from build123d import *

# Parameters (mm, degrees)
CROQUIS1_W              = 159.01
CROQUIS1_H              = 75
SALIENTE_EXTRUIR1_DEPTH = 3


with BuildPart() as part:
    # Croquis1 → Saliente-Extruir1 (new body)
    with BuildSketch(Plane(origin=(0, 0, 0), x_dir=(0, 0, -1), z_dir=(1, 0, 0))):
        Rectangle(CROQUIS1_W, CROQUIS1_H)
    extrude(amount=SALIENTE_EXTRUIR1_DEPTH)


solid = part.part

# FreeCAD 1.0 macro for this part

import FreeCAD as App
import Part
import Sketcher

V = App.Vector
Q = App.Units.Quantity

doc = App.newDocument("Part")
body = doc.addObject("PartDesign::Body", "Body")

sketch1 = body.newObject("Sketcher::SketchObject", "Sketch")
sketch1.AttachmentSupport = (doc.getObject("YZ_Plane"), [""])
sketch1.MapMode = "FlatFace"
sketch1.addGeometry(Part.LineSegment(V(38, 80, 0), V(-38, 80, 0)), False)
sketch1.addGeometry(Part.LineSegment(V(-38, 80, 0), V(-38, -80, 0)), False)
sketch1.addGeometry(Part.LineSegment(V(-38, -80, 0), V(38, -80, 0)), False)
sketch1.addGeometry(Part.LineSegment(V(38, -80, 0), V(38, 80, 0)), False)
sketch1.addConstraint(Sketcher.Constraint("Coincident", 0, 2, 1, 1))
sketch1.addConstraint(Sketcher.Constraint("Coincident", 1, 2, 2, 1))
sketch1.addConstraint(Sketcher.Constraint("Coincident", 2, 2, 3, 1))
sketch1.addConstraint(Sketcher.Constraint("Coincident", 3, 2, 0, 1))
sketch1.addConstraint(Sketcher.Constraint("Horizontal", 0))
sketch1.addConstraint(Sketcher.Constraint("Vertical", 1))
sketch1.addConstraint(Sketcher.Constraint("Horizontal", 2))
sketch1.addConstraint(Sketcher.Constraint("Vertical", 3))
sketch1.addConstraint(Sketcher.Constraint("Symmetric", 0, 2, 2, 2, -1, 1))
sketch1.addConstraint(Sketcher.Constraint("DistanceX", 0, 2, 0, 1, Q("75 mm")))
sketch1.addConstraint(Sketcher.Constraint("DistanceY", 1, 2, 1, 1, Q("159.01 mm")))
pad1 = body.newObject("PartDesign::Pad", "Pad")
pad1.Profile = sketch1
pad1.Length = 3

doc.recompute()
